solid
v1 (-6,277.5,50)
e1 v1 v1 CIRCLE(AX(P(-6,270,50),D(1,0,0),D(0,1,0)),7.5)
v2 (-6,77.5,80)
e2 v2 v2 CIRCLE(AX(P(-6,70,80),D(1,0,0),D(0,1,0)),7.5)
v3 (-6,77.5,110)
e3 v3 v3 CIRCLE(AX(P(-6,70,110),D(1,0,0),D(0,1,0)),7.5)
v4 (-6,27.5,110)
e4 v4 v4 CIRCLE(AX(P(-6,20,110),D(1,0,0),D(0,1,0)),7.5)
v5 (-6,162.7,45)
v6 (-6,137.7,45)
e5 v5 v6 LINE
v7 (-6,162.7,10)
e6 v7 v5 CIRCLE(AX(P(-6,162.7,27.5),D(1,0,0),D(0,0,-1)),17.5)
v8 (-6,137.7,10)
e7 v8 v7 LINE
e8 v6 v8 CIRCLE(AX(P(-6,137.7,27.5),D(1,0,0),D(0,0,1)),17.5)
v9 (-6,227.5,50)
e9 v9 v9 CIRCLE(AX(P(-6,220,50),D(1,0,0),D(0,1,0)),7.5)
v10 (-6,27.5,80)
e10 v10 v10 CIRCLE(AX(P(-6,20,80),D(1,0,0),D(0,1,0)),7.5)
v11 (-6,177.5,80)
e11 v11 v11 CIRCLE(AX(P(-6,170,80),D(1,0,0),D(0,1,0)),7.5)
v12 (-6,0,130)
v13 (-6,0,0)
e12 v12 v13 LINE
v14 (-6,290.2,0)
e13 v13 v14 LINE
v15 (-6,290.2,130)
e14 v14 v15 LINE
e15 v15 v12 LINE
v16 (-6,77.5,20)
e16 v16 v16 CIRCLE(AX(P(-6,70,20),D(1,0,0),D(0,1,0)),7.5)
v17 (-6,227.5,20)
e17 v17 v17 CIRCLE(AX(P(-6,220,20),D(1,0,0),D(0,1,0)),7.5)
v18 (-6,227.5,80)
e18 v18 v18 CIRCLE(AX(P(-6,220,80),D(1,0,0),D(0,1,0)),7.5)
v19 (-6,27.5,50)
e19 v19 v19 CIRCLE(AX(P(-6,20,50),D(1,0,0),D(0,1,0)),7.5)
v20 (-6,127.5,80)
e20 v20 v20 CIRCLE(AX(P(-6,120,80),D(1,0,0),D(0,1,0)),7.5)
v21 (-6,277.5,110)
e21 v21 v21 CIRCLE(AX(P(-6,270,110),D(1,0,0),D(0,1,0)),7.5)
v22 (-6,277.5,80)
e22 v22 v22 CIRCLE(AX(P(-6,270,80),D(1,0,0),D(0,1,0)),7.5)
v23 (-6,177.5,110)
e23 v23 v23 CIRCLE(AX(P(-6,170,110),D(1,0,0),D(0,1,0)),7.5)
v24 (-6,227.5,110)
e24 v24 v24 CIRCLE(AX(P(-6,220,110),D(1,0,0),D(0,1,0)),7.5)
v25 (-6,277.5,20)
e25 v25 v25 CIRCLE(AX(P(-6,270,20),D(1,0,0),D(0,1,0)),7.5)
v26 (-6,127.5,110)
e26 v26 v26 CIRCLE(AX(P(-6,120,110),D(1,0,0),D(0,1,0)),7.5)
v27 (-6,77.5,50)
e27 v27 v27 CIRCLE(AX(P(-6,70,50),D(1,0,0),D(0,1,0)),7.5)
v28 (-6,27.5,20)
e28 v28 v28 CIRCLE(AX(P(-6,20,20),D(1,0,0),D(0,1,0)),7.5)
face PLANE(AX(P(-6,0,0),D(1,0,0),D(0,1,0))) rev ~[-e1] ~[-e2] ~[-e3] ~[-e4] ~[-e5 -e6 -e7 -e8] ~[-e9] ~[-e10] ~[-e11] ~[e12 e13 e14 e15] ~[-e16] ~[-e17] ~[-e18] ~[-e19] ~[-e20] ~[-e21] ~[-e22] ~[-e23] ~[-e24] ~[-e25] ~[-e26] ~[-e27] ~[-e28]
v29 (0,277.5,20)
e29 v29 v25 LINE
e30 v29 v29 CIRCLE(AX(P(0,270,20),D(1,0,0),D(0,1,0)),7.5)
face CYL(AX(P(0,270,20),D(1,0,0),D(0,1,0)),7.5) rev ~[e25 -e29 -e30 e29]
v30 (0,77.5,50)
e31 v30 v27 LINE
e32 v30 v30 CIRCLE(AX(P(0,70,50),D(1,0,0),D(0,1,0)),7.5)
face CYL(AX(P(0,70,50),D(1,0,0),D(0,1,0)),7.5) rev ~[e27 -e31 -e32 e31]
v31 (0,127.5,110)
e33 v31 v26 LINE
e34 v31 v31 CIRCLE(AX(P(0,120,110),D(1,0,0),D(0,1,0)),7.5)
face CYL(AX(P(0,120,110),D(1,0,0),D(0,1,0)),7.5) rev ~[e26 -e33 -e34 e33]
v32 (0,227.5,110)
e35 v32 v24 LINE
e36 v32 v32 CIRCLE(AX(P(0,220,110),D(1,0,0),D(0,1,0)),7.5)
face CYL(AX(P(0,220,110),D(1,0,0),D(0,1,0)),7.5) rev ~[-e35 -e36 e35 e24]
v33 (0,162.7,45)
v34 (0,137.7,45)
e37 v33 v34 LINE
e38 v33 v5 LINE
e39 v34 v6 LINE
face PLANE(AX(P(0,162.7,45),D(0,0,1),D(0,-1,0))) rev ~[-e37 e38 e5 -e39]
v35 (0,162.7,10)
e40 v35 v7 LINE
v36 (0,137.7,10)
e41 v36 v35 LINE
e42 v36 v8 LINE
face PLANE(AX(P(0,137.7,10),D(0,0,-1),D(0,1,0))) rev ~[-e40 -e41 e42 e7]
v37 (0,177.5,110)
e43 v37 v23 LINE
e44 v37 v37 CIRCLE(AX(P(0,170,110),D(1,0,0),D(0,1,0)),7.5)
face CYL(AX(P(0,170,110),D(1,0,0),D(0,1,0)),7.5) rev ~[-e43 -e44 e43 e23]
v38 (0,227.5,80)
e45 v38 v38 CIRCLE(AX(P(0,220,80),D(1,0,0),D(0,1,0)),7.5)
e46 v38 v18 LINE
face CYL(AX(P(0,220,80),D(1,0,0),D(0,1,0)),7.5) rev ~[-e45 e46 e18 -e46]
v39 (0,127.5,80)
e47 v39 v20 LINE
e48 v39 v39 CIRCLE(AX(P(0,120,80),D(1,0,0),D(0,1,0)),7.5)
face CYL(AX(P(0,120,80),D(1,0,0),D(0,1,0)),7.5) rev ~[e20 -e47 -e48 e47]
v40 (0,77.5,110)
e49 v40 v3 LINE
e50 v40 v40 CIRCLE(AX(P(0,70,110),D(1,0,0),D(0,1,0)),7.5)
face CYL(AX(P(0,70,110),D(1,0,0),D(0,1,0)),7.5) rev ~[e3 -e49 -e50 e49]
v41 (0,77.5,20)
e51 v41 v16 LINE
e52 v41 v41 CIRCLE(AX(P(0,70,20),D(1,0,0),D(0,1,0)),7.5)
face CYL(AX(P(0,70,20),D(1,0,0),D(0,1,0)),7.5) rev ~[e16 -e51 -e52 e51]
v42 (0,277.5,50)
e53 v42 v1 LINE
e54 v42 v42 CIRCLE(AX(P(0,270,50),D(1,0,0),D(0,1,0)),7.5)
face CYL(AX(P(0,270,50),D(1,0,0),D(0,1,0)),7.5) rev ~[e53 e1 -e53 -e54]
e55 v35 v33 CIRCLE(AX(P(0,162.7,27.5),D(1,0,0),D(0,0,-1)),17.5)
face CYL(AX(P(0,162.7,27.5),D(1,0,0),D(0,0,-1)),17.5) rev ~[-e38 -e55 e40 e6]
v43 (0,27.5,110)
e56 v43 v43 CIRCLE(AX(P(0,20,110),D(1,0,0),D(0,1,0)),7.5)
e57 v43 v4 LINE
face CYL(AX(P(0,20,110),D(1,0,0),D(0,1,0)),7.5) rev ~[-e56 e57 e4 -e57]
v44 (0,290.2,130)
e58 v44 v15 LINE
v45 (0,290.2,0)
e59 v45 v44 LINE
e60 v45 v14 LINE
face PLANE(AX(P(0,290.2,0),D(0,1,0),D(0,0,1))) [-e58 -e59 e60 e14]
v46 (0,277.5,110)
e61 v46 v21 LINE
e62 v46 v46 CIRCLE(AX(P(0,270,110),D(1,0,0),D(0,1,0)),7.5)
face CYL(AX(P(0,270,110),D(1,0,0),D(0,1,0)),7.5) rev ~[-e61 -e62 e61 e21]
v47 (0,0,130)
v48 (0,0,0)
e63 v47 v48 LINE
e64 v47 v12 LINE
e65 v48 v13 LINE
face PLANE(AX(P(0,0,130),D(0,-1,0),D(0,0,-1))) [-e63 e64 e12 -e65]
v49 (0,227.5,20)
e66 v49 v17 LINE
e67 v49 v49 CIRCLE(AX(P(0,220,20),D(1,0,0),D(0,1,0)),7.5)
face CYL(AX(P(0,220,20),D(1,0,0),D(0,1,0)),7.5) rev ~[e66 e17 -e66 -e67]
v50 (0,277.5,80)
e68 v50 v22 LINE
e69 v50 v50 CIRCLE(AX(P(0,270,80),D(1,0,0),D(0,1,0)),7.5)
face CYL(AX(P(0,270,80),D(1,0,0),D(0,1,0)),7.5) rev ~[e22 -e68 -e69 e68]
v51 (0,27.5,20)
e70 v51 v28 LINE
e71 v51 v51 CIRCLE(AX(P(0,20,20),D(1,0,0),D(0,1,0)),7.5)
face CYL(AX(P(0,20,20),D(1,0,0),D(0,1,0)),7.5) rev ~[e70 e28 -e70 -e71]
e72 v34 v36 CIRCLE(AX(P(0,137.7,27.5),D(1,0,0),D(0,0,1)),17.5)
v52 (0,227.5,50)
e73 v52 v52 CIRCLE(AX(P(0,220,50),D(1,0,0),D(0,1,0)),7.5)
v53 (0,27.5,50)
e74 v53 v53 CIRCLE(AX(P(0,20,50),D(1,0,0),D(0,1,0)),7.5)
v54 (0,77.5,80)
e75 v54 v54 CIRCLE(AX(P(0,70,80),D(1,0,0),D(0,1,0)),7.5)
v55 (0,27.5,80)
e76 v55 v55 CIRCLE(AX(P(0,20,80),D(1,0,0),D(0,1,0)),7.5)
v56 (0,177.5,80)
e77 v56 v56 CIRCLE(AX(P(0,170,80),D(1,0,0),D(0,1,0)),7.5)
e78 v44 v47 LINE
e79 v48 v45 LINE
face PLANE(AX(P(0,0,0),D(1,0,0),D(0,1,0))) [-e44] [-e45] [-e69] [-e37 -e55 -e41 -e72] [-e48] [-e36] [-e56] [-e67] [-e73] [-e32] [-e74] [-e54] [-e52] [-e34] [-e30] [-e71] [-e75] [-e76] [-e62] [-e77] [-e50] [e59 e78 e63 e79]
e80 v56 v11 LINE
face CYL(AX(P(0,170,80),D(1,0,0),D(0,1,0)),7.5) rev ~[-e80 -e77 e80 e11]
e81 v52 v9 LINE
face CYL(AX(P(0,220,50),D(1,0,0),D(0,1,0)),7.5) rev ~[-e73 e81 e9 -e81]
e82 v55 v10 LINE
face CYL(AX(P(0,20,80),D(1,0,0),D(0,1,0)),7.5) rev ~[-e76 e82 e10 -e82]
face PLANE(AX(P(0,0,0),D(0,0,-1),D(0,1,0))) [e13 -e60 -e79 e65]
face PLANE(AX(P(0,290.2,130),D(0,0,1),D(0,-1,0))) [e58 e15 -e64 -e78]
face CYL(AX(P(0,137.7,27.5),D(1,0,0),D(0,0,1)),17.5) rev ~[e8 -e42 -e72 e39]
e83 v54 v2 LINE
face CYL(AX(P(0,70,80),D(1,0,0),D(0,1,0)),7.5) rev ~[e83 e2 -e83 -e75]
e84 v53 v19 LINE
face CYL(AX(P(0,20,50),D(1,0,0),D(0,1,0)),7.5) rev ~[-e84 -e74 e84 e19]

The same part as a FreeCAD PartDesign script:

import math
import FreeCAD as App
import Part
import Sketcher

doc = App.newDocument("Part")
body = doc.addObject("PartDesign::Body", "Body")

sketch1 = body.newObject("Sketcher::SketchObject", "Sketch")
sketch1.AttachmentSupport = (doc.getObject("YZ_Plane"), [""])
sketch1.MapMode = "FlatFace"
sketch1.addGeometry(Part.LineSegment(App.Vector(0, 130, 0), App.Vector(0, 0, 0)), False)
sketch1.addGeometry(Part.LineSegment(App.Vector(0, 0, 0), App.Vector(290.2, 0, 0)), False)
sketch1.addGeometry(Part.LineSegment(App.Vector(290.2, 0, 0), App.Vector(290.2, 130, 0)), False)
sketch1.addGeometry(Part.LineSegment(App.Vector(290.2, 130, 0), App.Vector(0, 130, 0)), False)
sketch1.addConstraint(Sketcher.Constraint("Coincident", 0, 2, 1, 1))
sketch1.addConstraint(Sketcher.Constraint("Coincident", 1, 2, 2, 1))
sketch1.addConstraint(Sketcher.Constraint("Coincident", 2, 2, 3, 1))
sketch1.addConstraint(Sketcher.Constraint("Coincident", 3, 2, 0, 1))
sketch1.addConstraint(Sketcher.Constraint("Vertical", 0))
sketch1.addConstraint(Sketcher.Constraint("Horizontal", 1))
sketch1.addConstraint(Sketcher.Constraint("Vertical", 2))
sketch1.addConstraint(Sketcher.Constraint("Horizontal", 3))
sketch1.addConstraint(Sketcher.Constraint("Coincident", 0, 2, -1, 1))
sketch1.addConstraint(Sketcher.Constraint("DistanceY", 0, 2, 0, 1, 130.0))
sketch1.addConstraint(Sketcher.Constraint("DistanceX", 1, 1, 1, 2, 290.2))
pad1 = body.newObject("PartDesign::Pad", "Pad")
pad1.Profile = sketch1
pad1.Length = 6
pad1.Reversed = True

sketch2 = body.newObject("Sketcher::SketchObject", "Sketch001")
sketch2.AttachmentSupport = (doc.getObject("YZ_Plane"), [""])
sketch2.MapMode = "FlatFace"
sketch2.addGeometry(Part.ArcOfCircle(Part.Circle(App.Vector(162.7, 27.5, 0), App.Vector(0, 0, 1), 17.5), math.radians(-90), math.radians(90)), False)
sketch2.addGeometry(Part.LineSegment(App.Vector(162.7, 45, 0), App.Vector(137.7, 45, 0)), False)
sketch2.addGeometry(Part.ArcOfCircle(Part.Circle(App.Vector(137.7, 27.5, 0), App.Vector(0, 0, 1), 17.5), math.radians(90), math.radians(270)), False)
sketch2.addGeometry(Part.LineSegment(App.Vector(137.7, 10, 0), App.Vector(162.7, 10, 0)), False)
sketch2.addGeometry(Part.Circle(App.Vector(20, 110, 0), App.Vector(0, 0, 1), 7.5), False)
sketch2.addGeometry(Part.Circle(App.Vector(70, 110, 0), App.Vector(0, 0, 1), 7.5), False)
sketch2.addGeometry(Part.Circle(App.Vector(120, 110, 0), App.Vector(0, 0, 1), 7.5), False)
sketch2.addGeometry(Part.Circle(App.Vector(170, 110, 0), App.Vector(0, 0, 1), 7.5), False)
sketch2.addGeometry(Part.Circle(App.Vector(220, 110, 0), App.Vector(0, 0, 1), 7.5), False)
sketch2.addGeometry(Part.Circle(App.Vector(270, 110, 0), App.Vector(0, 0, 1), 7.5), False)
sketch2.addGeometry(Part.Circle(App.Vector(20, 80, 0), App.Vector(0, 0, 1), 7.5), False)
sketch2.addGeometry(Part.Circle(App.Vector(70, 80, 0), App.Vector(0, 0, 1), 7.5), False)
sketch2.addGeometry(Part.Circle(App.Vector(120, 80, 0), App.Vector(0, 0, 1), 7.5), False)
sketch2.addGeometry(Part.Circle(App.Vector(170, 80, 0), App.Vector(0, 0, 1), 7.5), False)
sketch2.addGeometry(Part.Circle(App.Vector(220, 80, 0), App.Vector(0, 0, 1), 7.5), False)
sketch2.addGeometry(Part.Circle(App.Vector(270, 80, 0), App.Vector(0, 0, 1), 7.5), False)
sketch2.addGeometry(Part.Circle(App.Vector(20, 50, 0), App.Vector(0, 0, 1), 7.5), False)
sketch2.addGeometry(Part.Circle(App.Vector(70, 50, 0), App.Vector(0, 0, 1), 7.5), False)
sketch2.addGeometry(Part.Circle(App.Vector(220, 50, 0), App.Vector(0, 0, 1), 7.5), False)
sketch2.addGeometry(Part.Circle(App.Vector(270, 50, 0), App.Vector(0, 0, 1), 7.5), False)
sketch2.addGeometry(Part.Circle(App.Vector(20, 20, 0), App.Vector(0, 0, 1), 7.5), False)
sketch2.addGeometry(Part.Circle(App.Vector(70, 20, 0), App.Vector(0, 0, 1), 7.5), False)
sketch2.addGeometry(Part.Circle(App.Vector(220, 20, 0), App.Vector(0, 0, 1), 7.5), False)
sketch2.addGeometry(Part.Circle(App.Vector(270, 20, 0), App.Vector(0, 0, 1), 7.5), False)
sketch2.addConstraint(Sketcher.Constraint("Tangent", 0, 2, 1, 1))
sketch2.addConstraint(Sketcher.Constraint("Tangent", 1, 2, 2, 1))
sketch2.addConstraint(Sketcher.Constraint("Tangent", 2, 2, 3, 1))
sketch2.addConstraint(Sketcher.Constraint("Tangent", 3, 2, 0, 1))
sketch2.addConstraint(Sketcher.Constraint("Horizontal", 1))
sketch2.addConstraint(Sketcher.Constraint("Horizontal", 3))
sketch2.addConstraint(Sketcher.Constraint("Equal", 4, 5))
sketch2.addConstraint(Sketcher.Constraint("Equal", 5, 6))
sketch2.addConstraint(Sketcher.Constraint("Equal", 6, 7))
sketch2.addConstraint(Sketcher.Constraint("Equal", 7, 8))
sketch2.addConstraint(Sketcher.Constraint("Equal", 8, 9))
sketch2.addConstraint(Sketcher.Constraint("Equal", 9, 10))
sketch2.addConstraint(Sketcher.Constraint("Equal", 10, 11))
sketch2.addConstraint(Sketcher.Constraint("Equal", 11, 12))
sketch2.addConstraint(Sketcher.Constraint("Equal", 12, 13))
sketch2.addConstraint(Sketcher.Constraint("Equal", 13, 14))
sketch2.addConstraint(Sketcher.Constraint("Equal", 14, 15))
sketch2.addConstraint(Sketcher.Constraint("Equal", 15, 16))
sketch2.addConstraint(Sketcher.Constraint("Equal", 16, 17))
sketch2.addConstraint(Sketcher.Constraint("Equal", 17, 18))
sketch2.addConstraint(Sketcher.Constraint("Equal", 18, 19))
sketch2.addConstraint(Sketcher.Constraint("Equal", 19, 20))
sketch2.addConstraint(Sketcher.Constraint("Equal", 20, 21))
sketch2.addConstraint(Sketcher.Constraint("Equal", 21, 22))
sketch2.addConstraint(Sketcher.Constraint("Equal", 22, 23))
sketch2.addConstraint(Sketcher.Constraint("Horizontal", 4, 3, 5, 3))
sketch2.addConstraint(Sketcher.Constraint("Horizontal", 5, 3, 6, 3))
sketch2.addConstraint(Sketcher.Constraint("Horizontal", 6, 3, 7, 3))
sketch2.addConstraint(Sketcher.Constraint("Horizontal", 7, 3, 8, 3))
sketch2.addConstraint(Sketcher.Constraint("Horizontal", 8, 3, 9, 3))
sketch2.addConstraint(Sketcher.Constraint("Horizontal", 10, 3, 11, 3))
sketch2.addConstraint(Sketcher.Constraint("Horizontal", 11, 3, 12, 3))
sketch2.addConstraint(Sketcher.Constraint("Horizontal", 12, 3, 13, 3))
sketch2.addConstraint(Sketcher.Constraint("Horizontal", 13, 3, 14, 3))
sketch2.addConstraint(Sketcher.Constraint("Horizontal", 14, 3, 15, 3))
sketch2.addConstraint(Sketcher.Constraint("Horizontal", 16, 3, 17, 3))
sketch2.addConstraint(Sketcher.Constraint("Horizontal", 17, 3, 18, 3))
sketch2.addConstraint(Sketcher.Constraint("Horizontal", 18, 3, 19, 3))
sketch2.addConstraint(Sketcher.Constraint("Horizontal", 20, 3, 21, 3))
sketch2.addConstraint(Sketcher.Constraint("Horizontal", 21, 3, 22, 3))
sketch2.addConstraint(Sketcher.Constraint("Horizontal", 22, 3, 23, 3))
sketch2.addConstraint(Sketcher.Constraint("Vertical", 4, 3, 10, 3))
sketch2.addConstraint(Sketcher.Constraint("Vertical", 5, 3, 11, 3))
sketch2.addConstraint(Sketcher.Constraint("Vertical", 6, 3, 12, 3))
sketch2.addConstraint(Sketcher.Constraint("Vertical", 7, 3, 13, 3))
sketch2.addConstraint(Sketcher.Constraint("Vertical", 8, 3, 14, 3))
sketch2.addConstraint(Sketcher.Constraint("Vertical", 9, 3, 15, 3))
sketch2.addConstraint(Sketcher.Constraint("Vertical", 10, 3, 16, 3))
sketch2.addConstraint(Sketcher.Constraint("Vertical", 11, 3, 17, 3))
sketch2.addConstraint(Sketcher.Constraint("Vertical", 14, 3, 18, 3))
sketch2.addConstraint(Sketcher.Constraint("Vertical", 15, 3, 19, 3))
sketch2.addConstraint(Sketcher.Constraint("Vertical", 16, 3, 20, 3))
sketch2.addConstraint(Sketcher.Constraint("Vertical", 17, 3, 21, 3))
sketch2.addConstraint(Sketcher.Constraint("Vertical", 18, 3, 22, 3))
sketch2.addConstraint(Sketcher.Constraint("Vertical", 19, 3, 23, 3))
sketch2.addConstraint(Sketcher.Constraint("Diameter", 4, 15.0))
sketch2.addConstraint(Sketcher.Constraint("Radius", 0, 17.5))
sketch2.addConstraint(Sketcher.Constraint("DistanceX", -1, 1, 4, 3, 20.0))
sketch2.addConstraint(Sketcher.Constraint("DistanceY", -1, 1, 4, 3, 110.0))
sketch2.addConstraint(Sketcher.Constraint("DistanceY", -1, 1, 20, 3, 20.0))
sketch2.addConstraint(Sketcher.Constraint("DistanceY", -1, 1, 2, 2, 10.0))
sketch2.addConstraint(Sketcher.Constraint("DistanceY", 0, 2, 13, 3, 35.0))
sketch2.addConstraint(Sketcher.Constraint("DistanceX", 1, 2, 1, 1, 25.0))
sketch2.addConstraint(Sketcher.Constraint("DistanceX", -1, 1, 5, 3, 70.0))
sketch2.addConstraint(Sketcher.Constraint("DistanceX", -1, 1, 6, 3, 120.0))
sketch2.addConstraint(Sketcher.Constraint("DistanceX", -1, 1, 7, 3, 170.0))
sketch2.addConstraint(Sketcher.Constraint("DistanceX", -1, 1, 8, 3, 220.0))
sketch2.addConstraint(Sketcher.Constraint("DistanceX", -1, 1, 9, 3, 270.0))
sketch2.addConstraint(Sketcher.Constraint("DistanceY", -1, 1, 16, 3, 50.0))
sketch2.addConstraint(Sketcher.Constraint("DistanceX", -1, 1, 0, 3, 162.7))
pocket1 = body.newObject("PartDesign::Pocket", "Pocket")
pocket1.Profile = sketch2
pocket1.Length = 6

doc.recompute()
